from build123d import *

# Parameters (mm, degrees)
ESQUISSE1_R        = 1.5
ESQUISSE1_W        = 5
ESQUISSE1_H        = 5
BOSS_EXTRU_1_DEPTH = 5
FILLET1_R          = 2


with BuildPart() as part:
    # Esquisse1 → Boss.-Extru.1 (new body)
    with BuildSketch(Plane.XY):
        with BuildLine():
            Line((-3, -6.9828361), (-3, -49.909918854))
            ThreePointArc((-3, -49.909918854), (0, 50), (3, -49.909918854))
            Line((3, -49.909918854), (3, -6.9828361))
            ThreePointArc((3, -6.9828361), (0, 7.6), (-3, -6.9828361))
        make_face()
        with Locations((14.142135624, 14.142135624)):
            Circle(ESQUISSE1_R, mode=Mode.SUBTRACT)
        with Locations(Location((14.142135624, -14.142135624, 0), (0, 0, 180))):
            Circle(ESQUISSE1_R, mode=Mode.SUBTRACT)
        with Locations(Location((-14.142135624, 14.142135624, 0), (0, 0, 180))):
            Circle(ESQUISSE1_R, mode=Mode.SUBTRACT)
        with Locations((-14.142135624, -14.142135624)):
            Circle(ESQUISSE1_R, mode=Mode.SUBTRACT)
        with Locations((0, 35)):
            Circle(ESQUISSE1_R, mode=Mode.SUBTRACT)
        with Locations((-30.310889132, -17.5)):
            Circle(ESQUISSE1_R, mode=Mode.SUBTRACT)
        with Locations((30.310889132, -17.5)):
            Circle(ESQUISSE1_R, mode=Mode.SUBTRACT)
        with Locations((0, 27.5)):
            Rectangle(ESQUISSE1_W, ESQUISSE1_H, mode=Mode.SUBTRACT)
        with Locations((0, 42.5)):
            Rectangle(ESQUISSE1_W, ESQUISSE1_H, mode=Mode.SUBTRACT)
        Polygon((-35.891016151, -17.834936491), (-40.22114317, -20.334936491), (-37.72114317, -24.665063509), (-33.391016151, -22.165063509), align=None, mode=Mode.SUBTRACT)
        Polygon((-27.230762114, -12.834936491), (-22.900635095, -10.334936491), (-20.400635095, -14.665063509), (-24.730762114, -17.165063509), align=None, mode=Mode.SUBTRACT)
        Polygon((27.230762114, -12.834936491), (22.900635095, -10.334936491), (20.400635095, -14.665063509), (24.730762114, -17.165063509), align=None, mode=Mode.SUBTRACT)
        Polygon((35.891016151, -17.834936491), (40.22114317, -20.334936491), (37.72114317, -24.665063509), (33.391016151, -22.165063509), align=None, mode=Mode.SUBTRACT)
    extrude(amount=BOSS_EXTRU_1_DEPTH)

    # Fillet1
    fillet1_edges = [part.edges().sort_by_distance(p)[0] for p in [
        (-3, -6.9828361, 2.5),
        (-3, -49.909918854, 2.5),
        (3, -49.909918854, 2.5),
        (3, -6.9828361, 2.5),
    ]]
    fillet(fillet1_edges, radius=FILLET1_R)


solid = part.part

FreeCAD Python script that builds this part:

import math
import FreeCAD as App
import Part
import Sketcher
from FreeCAD import Vector
Q = App.Units.Quantity


def edges_at(feature, points):
    """Names of the edges that pass closest to the given points."""
    edges = feature.Shape.Edges
    near = lambda p: min(range(len(edges)), key=lambda i: edges[i].distToShape(Part.Vertex(*p))[0])
    return sorted({f"Edge{near(p) + 1}" for p in points})


def add_polygon(sketch, points):
    """Adds a closed chain of lines whose ends are joined by coincident constraints."""
    first, n = sketch.GeometryCount, len(points)
    for a, b in zip(points, points[1:] + points[:1]):
        sketch.addGeometry(Part.LineSegment(App.Vector(*a, 0), App.Vector(*b, 0)), False)
    for i in range(n):
        sketch.addConstraint(Sketcher.Constraint("Coincident", first + i, 2, first + (i + 1) % n, 1))

doc = App.newDocument("Part")
body = doc.addObject("PartDesign::Body", "Body")

sketch1 = body.newObject("Sketcher::SketchObject", "Sketch")
sketch1.AttachmentSupport = (doc.getObject("XY_Plane"), [""])
sketch1.MapMode = "FlatFace"
sketch1.addGeometry(Part.LineSegment(Vector(-3, -49.9, 0), Vector(-3, -7, 0)), False)
sketch1.addGeometry(Part.ArcOfCircle(Part.Circle(Vector(0, 0, 0), Vector(0, 0, 1), 7.6), math.radians(-67), math.radians(247)), False)
sketch1.addGeometry(Part.LineSegment(Vector(3, -7, 0), Vector(3, -49.9, 0)), False)
sketch1.addGeometry(Part.ArcOfCircle(Part.Circle(Vector(0, 0, 0), Vector(0, 0, 1), 50), math.radians(-87), math.radians(267)), False)
add_polygon(sketch1, [(35.9, -17.8), (40.2, -20.3), (37.7, -24.7), (33.4, -22.2)])
sketch1.addGeometry(Part.Circle(Vector(30.3, -17.5, 0), Vector(0, 0, 1), 1.5), False)
add_polygon(sketch1, [(27.2, -12.8), (24.7, -17.2), (20.4, -14.7), (22.9, -10.3)])
sketch1.addGeometry(Part.Circle(Vector(14.1, -14.1, 0), Vector(0, 0, 1), 1.5), False)
sketch1.addGeometry(Part.Circle(Vector(-14.1, -14.1, 0), Vector(0, 0, 1), 1.5), False)
add_polygon(sketch1, [(-35.9, -17.8), (-33.4, -22.2), (-37.7, -24.7), (-40.2, -20.3)])
sketch1.addGeometry(Part.Circle(Vector(-30.3, -17.5, 0), Vector(0, 0, 1), 1.5), False)
add_polygon(sketch1, [(-27.2, -12.8), (-22.9, -10.3), (-20.4, -14.7), (-24.7, -17.2)])
sketch1.addGeometry(Part.Circle(Vector(14.1, 14.1, 0), Vector(0, 0, 1), 1.5), False)
sketch1.addGeometry(Part.Circle(Vector(-14.1, 14.1, 0), Vector(0, 0, 1), 1.5), False)
add_polygon(sketch1, [(-2.5, 25), (-2.5, 30), (2.5, 30), (2.5, 25)])
sketch1.addGeometry(Part.Circle(Vector(0, 35, 0), Vector(0, 0, 1), 1.5), False)
add_polygon(sketch1, [(-2.5, 40), (-2.5, 45), (2.5, 45), (2.5, 40)])
sketch1.addConstraint([
    Sketcher.Constraint("Coincident", 0, 2, 1, 2),
    Sketcher.Constraint("Coincident", 1, 1, 2, 1),
    Sketcher.Constraint("Coincident", 2, 2, 3, 1),
    Sketcher.Constraint("Coincident", 3, 2, 0, 1),
    Sketcher.Constraint("Vertical", 0),
    Sketcher.Constraint("Vertical", 2),
    Sketcher.Constraint("Vertical", 26),
    Sketcher.Constraint("Horizontal", 27),
    Sketcher.Constraint("Vertical", 28),
    Sketcher.Constraint("Horizontal", 29),
    Sketcher.Constraint("Vertical", 31),
    Sketcher.Constraint("Horizontal", 32),
    Sketcher.Constraint("Vertical", 33),
    Sketcher.Constraint("Horizontal", 34),
    Sketcher.Constraint("Coincident", 1, 3, -1, 1),
    Sketcher.Constraint("Coincident", 3, 3, -1, 1),
    Sketcher.Constraint("Equal", 8, 13),
    Sketcher.Constraint("Equal", 13, 14),
    Sketcher.Constraint("Equal", 14, 19),
    Sketcher.Constraint("Equal", 19, 24),
    Sketcher.Constraint("Equal", 24, 25),
    Sketcher.Constraint("Equal", 25, 30),
    Sketcher.Constraint("Symmetric", 14, 3, 24, 3, -1, 1),
    Sketcher.Constraint("Symmetric", 13, 3, 25, 3, -1, 1),
    Sketcher.Constraint("Symmetric", 13, 3, 14, 3, -2),
    Sketcher.Constraint("Symmetric", 8, 3, 19, 3, -2),
    Sketcher.Constraint("Symmetric", 6, 2, 15, 2, -2),
    Sketcher.Constraint("Symmetric", 5, 2, 16, 2, -2),
    Sketcher.Constraint("Symmetric", 4, 2, 17, 2, -2),
    Sketcher.Constraint("Symmetric", 7, 2, 18, 2, -2),
    Sketcher.Constraint("Symmetric", 11, 2, 20, 2, -2),
    Sketcher.Constraint("Symmetric", 10, 2, 21, 2, -2),
    Sketcher.Constraint("Symmetric", 9, 2, 22, 2, -2),
    Sketcher.Constraint("Symmetric", 12, 2, 23, 2, -2),
    Sketcher.Constraint("PointOnObject", 30, 3, -2),
    Sketcher.Constraint("Perpendicular", 4, 5),
    Sketcher.Constraint("Perpendicular", 5, 6),
    Sketcher.Constraint("Perpendicular", 6, 7),
    Sketcher.Constraint("Parallel", 7, 9),
    Sketcher.Constraint("Perpendicular", 9, 10),
    Sketcher.Constraint("Perpendicular", 10, 11),
    Sketcher.Constraint("Perpendicular", 11, 12),
    Sketcher.Constraint("Horizontal", 0, 2, 1, 1),
    Sketcher.Constraint("Vertical", 29, 2, 31, 2),
    Sketcher.Constraint("Vertical", 28, 2, 32, 2),
    Sketcher.Constraint("Equal", 34, 26),
    Sketcher.Constraint("Equal", 28, 31),
    Sketcher.Constraint("Equal", 4, 5),
    Sketcher.Constraint("Equal", 7, 9),
    Sketcher.Constraint("Equal", 9, 10),
    Sketcher.Constraint("Diameter", 8, Q("3 mm")),
    Sketcher.Constraint("Radius", 3, Q("50 mm")),
    Sketcher.Constraint("Radius", 1, Q("7.6 mm")),
    Sketcher.Constraint("DistanceX", 27, 1, 27, 2, Q("5 mm")),
    Sketcher.Constraint("Angle", 4, Q("-30 deg")),
    Sketcher.Constraint("Distance", 4, Q("5 mm")),
    Sketcher.Constraint("DistanceY", -1, 1, 30, 3, Q("35 mm")),
    Sketcher.Constraint("DistanceX", 0, 2, -1, 1, Q("3 mm")),
    Sketcher.Constraint("DistanceY", -1, 1, 26, 2, Q("30 mm")),
    Sketcher.Constraint("DistanceY", -1, 1, 31, 2, Q("45 mm")),
    Sketcher.Constraint("DistanceY", 6, 2, 9, 2, Q("5 mm")),
    Sketcher.Constraint("DistanceY", 8, 3, -1, 1, Q("17.5 mm")),
    Sketcher.Constraint("DistanceX", 26, 2, -1, 1, Q("2.5 mm")),
    Sketcher.Constraint("DistanceY", 14, 3, 0, 2, Q("7.1593 mm")),
    Sketcher.Constraint("DistanceY", 4, 2, 13, 3, Q("6.192801 mm")),
    Sketcher.Constraint("DistanceX", 13, 3, 10, 2, Q("6.258499 mm")),
    Sketcher.Constraint("DistanceX", -1, 1, 8, 3, Q("30.310889 mm")),
    Sketcher.Constraint("DistanceX", 14, 3, 13, 3, Q("28.284271 mm")),
    Sketcher.Constraint("DistanceX", 13, 3, 6, 2, Q("19.248881 mm")),
])
pad1 = body.newObject("PartDesign::Pad", "Pad")
pad1.Profile = sketch1
pad1.Length = 5
doc.recompute()

fillet = body.newObject("PartDesign::Fillet", "Fillet")
fillet.Base = (pad1, edges_at(pad1, [
    (-3, -6.983, 2.5),
    (-3, -49.91, 2.5),
    (3, -49.91, 2.5),
    (3, -6.983, 2.5),
]))
fillet.Radius = 2

doc.recompute()
